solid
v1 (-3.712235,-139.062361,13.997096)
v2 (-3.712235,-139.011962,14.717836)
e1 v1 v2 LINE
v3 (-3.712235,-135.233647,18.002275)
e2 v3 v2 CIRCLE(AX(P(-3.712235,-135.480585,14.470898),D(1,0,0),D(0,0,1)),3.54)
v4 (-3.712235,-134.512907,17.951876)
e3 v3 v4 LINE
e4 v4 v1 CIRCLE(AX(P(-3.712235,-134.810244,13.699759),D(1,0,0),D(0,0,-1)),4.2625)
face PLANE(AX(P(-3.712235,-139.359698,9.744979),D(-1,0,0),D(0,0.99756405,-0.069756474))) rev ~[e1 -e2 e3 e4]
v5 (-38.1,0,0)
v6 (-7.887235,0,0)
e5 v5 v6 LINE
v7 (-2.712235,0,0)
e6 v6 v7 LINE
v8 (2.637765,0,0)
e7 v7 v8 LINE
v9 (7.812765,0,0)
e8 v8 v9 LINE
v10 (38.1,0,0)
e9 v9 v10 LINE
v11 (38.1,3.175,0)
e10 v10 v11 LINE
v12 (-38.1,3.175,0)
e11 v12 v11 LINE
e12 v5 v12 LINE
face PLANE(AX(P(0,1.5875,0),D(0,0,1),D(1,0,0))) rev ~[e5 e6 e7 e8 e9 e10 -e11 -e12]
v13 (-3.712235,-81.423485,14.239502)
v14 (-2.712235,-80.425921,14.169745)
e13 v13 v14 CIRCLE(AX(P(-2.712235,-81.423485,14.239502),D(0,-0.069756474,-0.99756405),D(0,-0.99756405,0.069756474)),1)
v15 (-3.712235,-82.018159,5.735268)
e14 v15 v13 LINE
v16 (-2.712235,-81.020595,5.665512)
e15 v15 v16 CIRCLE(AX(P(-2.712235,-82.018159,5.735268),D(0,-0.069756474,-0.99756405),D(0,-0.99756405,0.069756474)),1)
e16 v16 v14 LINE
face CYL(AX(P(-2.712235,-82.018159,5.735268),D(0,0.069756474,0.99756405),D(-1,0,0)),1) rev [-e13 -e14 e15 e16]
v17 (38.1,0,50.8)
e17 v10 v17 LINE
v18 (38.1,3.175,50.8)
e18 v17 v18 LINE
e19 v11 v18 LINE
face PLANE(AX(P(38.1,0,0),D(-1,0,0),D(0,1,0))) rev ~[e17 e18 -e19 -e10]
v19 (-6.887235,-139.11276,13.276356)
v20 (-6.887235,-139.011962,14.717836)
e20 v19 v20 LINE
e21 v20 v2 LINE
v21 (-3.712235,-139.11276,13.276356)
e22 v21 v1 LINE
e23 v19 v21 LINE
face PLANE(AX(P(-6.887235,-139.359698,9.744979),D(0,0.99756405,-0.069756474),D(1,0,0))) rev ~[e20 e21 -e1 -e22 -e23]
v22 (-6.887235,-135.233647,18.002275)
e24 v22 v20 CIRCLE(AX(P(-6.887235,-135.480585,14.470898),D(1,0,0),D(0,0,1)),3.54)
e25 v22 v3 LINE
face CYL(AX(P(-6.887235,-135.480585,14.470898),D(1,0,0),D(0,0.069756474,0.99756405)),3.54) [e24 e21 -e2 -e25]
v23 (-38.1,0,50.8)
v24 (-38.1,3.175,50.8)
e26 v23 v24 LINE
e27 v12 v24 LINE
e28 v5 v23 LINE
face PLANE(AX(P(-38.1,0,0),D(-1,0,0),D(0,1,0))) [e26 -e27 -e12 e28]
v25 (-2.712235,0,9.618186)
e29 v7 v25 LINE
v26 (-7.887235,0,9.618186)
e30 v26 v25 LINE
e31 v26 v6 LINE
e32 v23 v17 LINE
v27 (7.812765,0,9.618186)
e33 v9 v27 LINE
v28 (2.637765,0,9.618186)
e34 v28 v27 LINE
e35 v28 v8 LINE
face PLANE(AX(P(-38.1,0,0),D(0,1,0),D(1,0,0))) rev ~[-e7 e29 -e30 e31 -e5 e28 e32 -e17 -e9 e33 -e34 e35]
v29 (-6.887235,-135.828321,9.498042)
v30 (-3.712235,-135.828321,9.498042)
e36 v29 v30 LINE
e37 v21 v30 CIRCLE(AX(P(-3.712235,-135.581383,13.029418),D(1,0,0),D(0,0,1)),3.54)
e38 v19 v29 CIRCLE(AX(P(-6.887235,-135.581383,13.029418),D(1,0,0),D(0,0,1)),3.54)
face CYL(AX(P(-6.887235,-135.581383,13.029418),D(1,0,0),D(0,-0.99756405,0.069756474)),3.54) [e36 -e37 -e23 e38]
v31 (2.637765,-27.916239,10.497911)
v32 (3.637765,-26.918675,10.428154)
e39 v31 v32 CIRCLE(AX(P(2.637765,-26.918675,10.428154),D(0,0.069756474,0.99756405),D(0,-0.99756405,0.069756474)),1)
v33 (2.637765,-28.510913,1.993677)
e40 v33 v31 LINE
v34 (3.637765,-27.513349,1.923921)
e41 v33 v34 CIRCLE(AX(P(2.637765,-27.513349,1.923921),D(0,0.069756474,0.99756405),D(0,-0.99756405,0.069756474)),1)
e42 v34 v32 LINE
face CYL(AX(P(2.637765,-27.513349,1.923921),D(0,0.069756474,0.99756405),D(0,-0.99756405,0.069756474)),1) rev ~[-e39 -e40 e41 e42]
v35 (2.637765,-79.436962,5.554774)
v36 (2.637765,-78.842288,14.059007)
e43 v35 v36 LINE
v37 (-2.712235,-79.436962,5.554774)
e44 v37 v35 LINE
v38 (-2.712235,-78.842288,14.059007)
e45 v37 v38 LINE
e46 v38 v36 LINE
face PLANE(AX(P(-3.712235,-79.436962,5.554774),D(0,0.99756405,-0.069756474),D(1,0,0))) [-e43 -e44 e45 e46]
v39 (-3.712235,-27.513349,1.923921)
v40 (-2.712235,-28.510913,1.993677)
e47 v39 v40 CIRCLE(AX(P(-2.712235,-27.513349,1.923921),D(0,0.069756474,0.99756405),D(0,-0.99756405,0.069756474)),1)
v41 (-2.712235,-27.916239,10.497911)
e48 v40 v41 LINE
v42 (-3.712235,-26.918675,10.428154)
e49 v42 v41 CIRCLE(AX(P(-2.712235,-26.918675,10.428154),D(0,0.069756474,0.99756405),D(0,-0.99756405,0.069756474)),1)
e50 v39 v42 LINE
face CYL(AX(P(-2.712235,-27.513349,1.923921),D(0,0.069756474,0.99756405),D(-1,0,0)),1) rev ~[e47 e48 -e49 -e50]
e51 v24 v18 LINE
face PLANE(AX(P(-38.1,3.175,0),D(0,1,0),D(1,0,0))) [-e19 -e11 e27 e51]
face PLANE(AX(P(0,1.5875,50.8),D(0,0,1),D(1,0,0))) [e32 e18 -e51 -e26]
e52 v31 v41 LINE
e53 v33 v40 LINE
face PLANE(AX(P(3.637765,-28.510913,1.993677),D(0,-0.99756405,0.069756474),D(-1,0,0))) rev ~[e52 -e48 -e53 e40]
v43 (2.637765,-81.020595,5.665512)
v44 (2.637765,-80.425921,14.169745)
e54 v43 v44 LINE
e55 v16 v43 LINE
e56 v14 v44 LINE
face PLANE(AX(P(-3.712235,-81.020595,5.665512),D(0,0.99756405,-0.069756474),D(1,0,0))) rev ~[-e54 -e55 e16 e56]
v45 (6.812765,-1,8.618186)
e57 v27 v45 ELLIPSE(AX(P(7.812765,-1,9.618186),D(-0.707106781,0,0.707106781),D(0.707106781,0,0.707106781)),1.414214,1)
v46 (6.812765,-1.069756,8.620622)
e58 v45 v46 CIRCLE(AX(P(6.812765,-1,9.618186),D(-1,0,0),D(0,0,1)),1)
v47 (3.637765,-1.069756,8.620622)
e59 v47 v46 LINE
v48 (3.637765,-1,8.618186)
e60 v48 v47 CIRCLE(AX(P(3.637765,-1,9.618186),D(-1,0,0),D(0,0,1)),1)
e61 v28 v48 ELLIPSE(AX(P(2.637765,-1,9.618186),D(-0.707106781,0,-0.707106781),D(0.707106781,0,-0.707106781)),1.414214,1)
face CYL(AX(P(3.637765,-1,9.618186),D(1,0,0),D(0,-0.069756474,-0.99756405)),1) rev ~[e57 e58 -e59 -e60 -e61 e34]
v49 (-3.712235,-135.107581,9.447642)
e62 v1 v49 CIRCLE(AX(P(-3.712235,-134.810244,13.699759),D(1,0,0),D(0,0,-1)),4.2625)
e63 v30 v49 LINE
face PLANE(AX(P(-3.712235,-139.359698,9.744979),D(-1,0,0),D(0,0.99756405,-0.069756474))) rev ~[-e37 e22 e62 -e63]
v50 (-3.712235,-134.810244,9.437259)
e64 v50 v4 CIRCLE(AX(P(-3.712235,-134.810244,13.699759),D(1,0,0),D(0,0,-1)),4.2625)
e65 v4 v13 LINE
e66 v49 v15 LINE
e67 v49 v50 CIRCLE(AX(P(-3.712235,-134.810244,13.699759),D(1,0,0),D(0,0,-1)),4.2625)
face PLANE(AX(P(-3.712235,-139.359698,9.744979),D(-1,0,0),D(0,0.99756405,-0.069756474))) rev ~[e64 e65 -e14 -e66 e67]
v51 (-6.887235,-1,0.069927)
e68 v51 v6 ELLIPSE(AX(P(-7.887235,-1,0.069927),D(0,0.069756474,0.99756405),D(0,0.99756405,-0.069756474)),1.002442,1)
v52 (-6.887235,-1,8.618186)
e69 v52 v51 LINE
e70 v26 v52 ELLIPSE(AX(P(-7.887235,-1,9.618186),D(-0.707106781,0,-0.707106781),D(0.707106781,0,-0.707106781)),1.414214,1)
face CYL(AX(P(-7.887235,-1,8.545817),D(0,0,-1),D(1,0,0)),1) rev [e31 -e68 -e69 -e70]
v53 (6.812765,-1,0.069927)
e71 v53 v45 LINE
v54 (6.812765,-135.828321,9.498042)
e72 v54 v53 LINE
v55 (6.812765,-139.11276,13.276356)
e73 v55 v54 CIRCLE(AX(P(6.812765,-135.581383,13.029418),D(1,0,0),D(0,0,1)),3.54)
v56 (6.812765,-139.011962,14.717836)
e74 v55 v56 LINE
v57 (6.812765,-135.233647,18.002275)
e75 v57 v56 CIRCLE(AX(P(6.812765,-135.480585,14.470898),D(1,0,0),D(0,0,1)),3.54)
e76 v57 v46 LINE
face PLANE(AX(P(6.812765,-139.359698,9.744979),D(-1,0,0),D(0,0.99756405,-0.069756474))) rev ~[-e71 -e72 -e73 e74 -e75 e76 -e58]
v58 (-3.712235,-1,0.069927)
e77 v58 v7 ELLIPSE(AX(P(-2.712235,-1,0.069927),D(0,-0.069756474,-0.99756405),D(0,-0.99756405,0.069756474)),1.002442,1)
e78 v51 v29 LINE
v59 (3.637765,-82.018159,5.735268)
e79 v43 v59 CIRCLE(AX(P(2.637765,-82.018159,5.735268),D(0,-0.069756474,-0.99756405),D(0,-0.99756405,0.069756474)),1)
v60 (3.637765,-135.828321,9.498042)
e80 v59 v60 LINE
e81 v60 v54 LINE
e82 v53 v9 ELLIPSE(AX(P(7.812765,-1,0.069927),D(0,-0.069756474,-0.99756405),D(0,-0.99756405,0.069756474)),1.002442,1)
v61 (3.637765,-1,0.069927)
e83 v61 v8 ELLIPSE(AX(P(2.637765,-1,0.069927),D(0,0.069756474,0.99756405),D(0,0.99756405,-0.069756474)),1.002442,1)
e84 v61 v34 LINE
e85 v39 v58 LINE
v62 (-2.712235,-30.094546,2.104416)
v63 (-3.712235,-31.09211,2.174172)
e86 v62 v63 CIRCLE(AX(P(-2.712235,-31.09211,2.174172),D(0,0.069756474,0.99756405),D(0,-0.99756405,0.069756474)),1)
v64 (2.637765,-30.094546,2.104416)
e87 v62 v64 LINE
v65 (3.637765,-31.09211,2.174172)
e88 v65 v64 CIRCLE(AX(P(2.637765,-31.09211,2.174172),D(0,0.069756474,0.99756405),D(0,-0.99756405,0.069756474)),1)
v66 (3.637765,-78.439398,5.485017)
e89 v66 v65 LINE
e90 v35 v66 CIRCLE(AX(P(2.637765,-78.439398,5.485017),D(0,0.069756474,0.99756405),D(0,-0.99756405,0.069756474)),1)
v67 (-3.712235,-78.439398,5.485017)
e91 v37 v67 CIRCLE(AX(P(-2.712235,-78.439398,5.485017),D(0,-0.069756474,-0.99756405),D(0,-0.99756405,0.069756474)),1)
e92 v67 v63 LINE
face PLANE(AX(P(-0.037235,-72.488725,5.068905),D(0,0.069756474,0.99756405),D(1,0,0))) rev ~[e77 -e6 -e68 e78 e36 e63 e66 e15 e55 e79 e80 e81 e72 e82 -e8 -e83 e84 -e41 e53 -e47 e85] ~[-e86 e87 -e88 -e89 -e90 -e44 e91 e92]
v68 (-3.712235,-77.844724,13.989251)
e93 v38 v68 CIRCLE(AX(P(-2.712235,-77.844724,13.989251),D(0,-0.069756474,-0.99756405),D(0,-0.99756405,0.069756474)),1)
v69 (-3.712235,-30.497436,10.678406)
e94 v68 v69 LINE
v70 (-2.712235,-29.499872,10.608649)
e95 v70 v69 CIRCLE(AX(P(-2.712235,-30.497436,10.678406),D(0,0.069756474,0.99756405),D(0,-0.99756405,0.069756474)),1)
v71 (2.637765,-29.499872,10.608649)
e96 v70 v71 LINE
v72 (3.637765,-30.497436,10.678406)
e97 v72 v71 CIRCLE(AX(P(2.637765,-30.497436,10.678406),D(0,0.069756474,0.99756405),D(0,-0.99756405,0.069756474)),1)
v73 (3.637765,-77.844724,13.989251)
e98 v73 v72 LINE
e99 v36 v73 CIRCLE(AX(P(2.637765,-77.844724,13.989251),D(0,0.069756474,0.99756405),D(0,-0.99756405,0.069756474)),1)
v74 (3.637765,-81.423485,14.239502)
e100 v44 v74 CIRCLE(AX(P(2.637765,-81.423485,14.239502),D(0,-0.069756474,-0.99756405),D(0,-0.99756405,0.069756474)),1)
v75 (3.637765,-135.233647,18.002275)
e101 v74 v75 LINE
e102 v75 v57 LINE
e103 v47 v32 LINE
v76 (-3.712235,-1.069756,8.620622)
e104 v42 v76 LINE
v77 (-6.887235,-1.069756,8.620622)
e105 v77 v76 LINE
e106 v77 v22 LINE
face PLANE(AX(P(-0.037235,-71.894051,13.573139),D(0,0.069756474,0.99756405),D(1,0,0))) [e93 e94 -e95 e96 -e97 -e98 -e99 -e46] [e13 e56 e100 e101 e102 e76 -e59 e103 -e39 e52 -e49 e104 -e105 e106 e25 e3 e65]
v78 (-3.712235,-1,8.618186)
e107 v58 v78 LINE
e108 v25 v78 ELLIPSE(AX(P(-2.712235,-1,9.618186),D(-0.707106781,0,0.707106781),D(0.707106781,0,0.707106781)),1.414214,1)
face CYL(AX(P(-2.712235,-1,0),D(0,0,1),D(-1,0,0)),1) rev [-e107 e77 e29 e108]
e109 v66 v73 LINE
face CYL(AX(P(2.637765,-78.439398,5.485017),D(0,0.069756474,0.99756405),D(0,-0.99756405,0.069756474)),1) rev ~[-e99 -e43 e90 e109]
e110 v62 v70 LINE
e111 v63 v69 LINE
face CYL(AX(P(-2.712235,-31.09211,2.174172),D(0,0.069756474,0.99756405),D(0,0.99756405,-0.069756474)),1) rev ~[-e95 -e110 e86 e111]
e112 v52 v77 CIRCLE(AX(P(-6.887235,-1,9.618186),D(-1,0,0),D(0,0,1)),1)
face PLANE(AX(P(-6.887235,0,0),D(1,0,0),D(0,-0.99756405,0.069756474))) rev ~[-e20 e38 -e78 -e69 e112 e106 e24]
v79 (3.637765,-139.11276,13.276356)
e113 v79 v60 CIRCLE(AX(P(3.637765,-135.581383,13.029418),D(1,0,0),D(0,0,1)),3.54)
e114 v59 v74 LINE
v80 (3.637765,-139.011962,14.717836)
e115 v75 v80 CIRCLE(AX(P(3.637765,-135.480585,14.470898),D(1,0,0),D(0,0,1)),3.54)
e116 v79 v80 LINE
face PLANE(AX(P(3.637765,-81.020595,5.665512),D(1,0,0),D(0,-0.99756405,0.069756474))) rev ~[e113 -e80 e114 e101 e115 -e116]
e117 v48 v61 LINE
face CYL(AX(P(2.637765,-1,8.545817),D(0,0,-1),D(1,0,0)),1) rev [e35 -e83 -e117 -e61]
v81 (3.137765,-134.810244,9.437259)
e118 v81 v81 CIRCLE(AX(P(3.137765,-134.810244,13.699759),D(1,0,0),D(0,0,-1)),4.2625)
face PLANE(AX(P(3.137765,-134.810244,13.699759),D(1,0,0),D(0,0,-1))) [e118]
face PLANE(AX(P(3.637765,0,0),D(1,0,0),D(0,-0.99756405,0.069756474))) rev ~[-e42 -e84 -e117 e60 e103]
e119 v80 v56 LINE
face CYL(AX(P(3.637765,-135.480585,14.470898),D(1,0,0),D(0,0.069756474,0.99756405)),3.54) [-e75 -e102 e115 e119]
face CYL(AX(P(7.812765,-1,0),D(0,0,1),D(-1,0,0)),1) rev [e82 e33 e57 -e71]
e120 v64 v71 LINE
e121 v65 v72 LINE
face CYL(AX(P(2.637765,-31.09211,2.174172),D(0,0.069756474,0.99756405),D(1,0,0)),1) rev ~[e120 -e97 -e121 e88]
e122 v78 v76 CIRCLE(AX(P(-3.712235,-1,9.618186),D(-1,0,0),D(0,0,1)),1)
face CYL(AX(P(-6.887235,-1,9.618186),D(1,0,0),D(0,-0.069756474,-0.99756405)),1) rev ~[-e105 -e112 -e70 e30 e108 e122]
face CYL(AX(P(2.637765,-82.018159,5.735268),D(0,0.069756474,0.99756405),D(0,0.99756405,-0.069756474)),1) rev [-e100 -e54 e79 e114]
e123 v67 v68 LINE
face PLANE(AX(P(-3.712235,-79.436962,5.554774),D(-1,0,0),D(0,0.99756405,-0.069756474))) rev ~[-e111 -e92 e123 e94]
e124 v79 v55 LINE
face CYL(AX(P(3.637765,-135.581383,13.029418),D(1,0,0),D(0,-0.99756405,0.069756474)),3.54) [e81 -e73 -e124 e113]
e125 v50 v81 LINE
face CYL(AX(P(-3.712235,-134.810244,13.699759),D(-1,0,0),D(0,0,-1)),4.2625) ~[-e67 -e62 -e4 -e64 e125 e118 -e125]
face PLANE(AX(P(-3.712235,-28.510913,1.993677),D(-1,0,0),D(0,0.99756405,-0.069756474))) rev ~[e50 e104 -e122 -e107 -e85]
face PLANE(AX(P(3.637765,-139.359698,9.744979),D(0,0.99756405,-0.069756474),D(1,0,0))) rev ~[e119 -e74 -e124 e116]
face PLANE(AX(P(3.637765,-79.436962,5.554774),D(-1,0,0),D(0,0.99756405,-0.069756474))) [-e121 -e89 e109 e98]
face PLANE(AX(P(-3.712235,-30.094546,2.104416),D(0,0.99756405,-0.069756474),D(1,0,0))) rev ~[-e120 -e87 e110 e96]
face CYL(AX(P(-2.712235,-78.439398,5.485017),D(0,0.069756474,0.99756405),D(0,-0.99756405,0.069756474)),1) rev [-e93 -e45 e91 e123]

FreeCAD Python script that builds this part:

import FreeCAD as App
import Part
import Sketcher
Q = App.Units.Quantity


def edges_at(feature, points):
    """Names of the edges that pass closest to the given points."""
    edges = feature.Shape.Edges
    near = lambda p: min(range(len(edges)), key=lambda i: edges[i].distToShape(Part.Vertex(*p))[0])
    return sorted({f"Edge{near(p) + 1}" for p in points})

doc = App.newDocument("Part")
body = doc.addObject("PartDesign::Body", "Body")

# Sketch on XY plane
sketch1 = doc.addObject("Sketcher::SketchObject", "Sketch")
body.addObject(sketch1)
sketch1.AttachmentSupport = (doc.XY_Plane, [""])
sketch1.MapMode = "FlatFace"
sketch1.addGeometry([
    Part.LineSegment(App.Vector(-38.1, 3.2, 0), App.Vector(-38.1, 0, 0)),
    Part.LineSegment(App.Vector(-38.1, 0, 0), App.Vector(38.1, 0, 0)),
    Part.LineSegment(App.Vector(38.1, 0, 0), App.Vector(38.1, 3.2, 0)),
    Part.LineSegment(App.Vector(38.1, 3.2, 0), App.Vector(-38.1, 3.2, 0)),
], False)
sketch1.addConstraint([
    Sketcher.Constraint("Coincident", 0, 2, 1, 1),
    Sketcher.Constraint("Coincident", 1, 2, 2, 1),
    Sketcher.Constraint("Coincident", 2, 2, 3, 1),
    Sketcher.Constraint("Coincident", 3, 2, 0, 1),
    Sketcher.Constraint("Vertical", 0),
    Sketcher.Constraint("Horizontal", 1),
    Sketcher.Constraint("Vertical", 2),
    Sketcher.Constraint("Horizontal", 3),
    Sketcher.Constraint("Symmetric", 0, 2, 1, 2, -1, 1),
    Sketcher.Constraint("DistanceX", 1, 1, 1, 2, Q("3 in")),
    Sketcher.Constraint("DistanceY", 0, 2, 0, 1, Q("0.125 in")),
])
pad1 = doc.addObject("PartDesign::Pad", "Pad")
body.addObject(pad1)
pad1.Profile = sketch1
pad1.Length = Q("2 in")

# Sketch on an angled plane
sketch2 = doc.addObject("Sketcher::SketchObject", "Sketch001")
body.addObject(sketch2)
sketch2.Placement = App.Placement(App.Vector(0, 0, 0), App.Rotation(App.Vector(1, 0, 0), App.Vector(0, 0.99756405, -0.069756474), App.Vector(0, 0.069756474, 0.99756405), "ZXY"))
sketch2.addGeometry([
    Part.LineSegment(App.Vector(-3.7, 0, 0), App.Vector(-6.9, 0, 0)),  # 0
    Part.LineSegment(App.Vector(-6.9, 0, 0), App.Vector(-6.9, -139.7, 0)),  # 1
    Part.LineSegment(App.Vector(-6.9, -139.7, 0), App.Vector(-3.7, -139.7, 0)),  # 2
    Part.LineSegment(App.Vector(-3.7, -139.7, 0), App.Vector(-3.7, -81.2, 0)),  # 3
    Part.LineSegment(App.Vector(-3.7, -81.2, 0), App.Vector(3.6, -81.2, 0)),  # 4
    Part.LineSegment(App.Vector(3.6, -81.2, 0), App.Vector(3.6, -139.7, 0)),  # 5
    Part.LineSegment(App.Vector(3.6, -139.7, 0), App.Vector(6.8, -139.7, 0)),  # 6
    Part.LineSegment(App.Vector(6.8, -139.7, 0), App.Vector(6.8, 0, 0)),  # 7
    Part.LineSegment(App.Vector(6.8, 0, 0), App.Vector(3.6, 0, 0)),  # 8
    Part.LineSegment(App.Vector(3.6, 0, 0), App.Vector(3.6, -28.6, 0)),  # 9
    Part.LineSegment(App.Vector(3.6, -28.6, 0), App.Vector(-3.7, -28.6, 0)),  # 10
    Part.LineSegment(App.Vector(-3.7, -28.6, 0), App.Vector(-3.7, 0, 0)),  # 11
    Part.LineSegment(App.Vector(3.6, -79.6, 0), App.Vector(-3.7, -79.6, 0)),  # 12
    Part.LineSegment(App.Vector(-3.7, -79.6, 0), App.Vector(-3.7, -30.2, 0)),  # 13
    Part.LineSegment(App.Vector(-3.7, -30.2, 0), App.Vector(3.6, -30.2, 0)),  # 14
    Part.LineSegment(App.Vector(3.6, -30.2, 0), App.Vector(3.6, -79.6, 0)),  # 15
], False)
sketch2.addConstraint([
    Sketcher.Constraint("Coincident", 0, 2, 1, 1),
    Sketcher.Constraint("Coincident", 1, 2, 2, 1),
    Sketcher.Constraint("Coincident", 2, 2, 3, 1),
    Sketcher.Constraint("Coincident", 3, 2, 4, 1),
    Sketcher.Constraint("Coincident", 4, 2, 5, 1),
    Sketcher.Constraint("Coincident", 5, 2, 6, 1),
    Sketcher.Constraint("Coincident", 6, 2, 7, 1),
    Sketcher.Constraint("Coincident", 7, 2, 8, 1),
    Sketcher.Constraint("Coincident", 8, 2, 9, 1),
    Sketcher.Constraint("Coincident", 9, 2, 10, 1),
    Sketcher.Constraint("Coincident", 10, 2, 11, 1),
    Sketcher.Constraint("Coincident", 11, 2, 0, 1),
    Sketcher.Constraint("Coincident", 12, 2, 13, 1),
    Sketcher.Constraint("Coincident", 13, 2, 14, 1),
    Sketcher.Constraint("Coincident", 14, 2, 15, 1),
    Sketcher.Constraint("Coincident", 15, 2, 12, 1),
    Sketcher.Constraint("Horizontal", 0),
    Sketcher.Constraint("Vertical", 1),
    Sketcher.Constraint("Horizontal", 2),
    Sketcher.Constraint("Vertical", 3),
    Sketcher.Constraint("Horizontal", 4),
    Sketcher.Constraint("Vertical", 5),
    Sketcher.Constraint("Horizontal", 6),
    Sketcher.Constraint("Vertical", 7),
    Sketcher.Constraint("Horizontal", 8),
    Sketcher.Constraint("Vertical", 9),
    Sketcher.Constraint("Horizontal", 10),
    Sketcher.Constraint("Vertical", 11),
    Sketcher.Constraint("Horizontal", 12),
    Sketcher.Constraint("Vertical", 13),
    Sketcher.Constraint("Horizontal", 14),
    Sketcher.Constraint("Vertical", 15),
    Sketcher.Constraint("PointOnObject", 0, 2, -1),
    Sketcher.Constraint("PointOnObject", 7, 2, -1),
    Sketcher.Constraint("Horizontal", 2, 2, 5, 2),
    Sketcher.Constraint("Vertical", 5, 2, 8, 2),
    Sketcher.Constraint("Vertical", 3, 2, 10, 2),
    Sketcher.Constraint("Vertical", 11, 2, 12, 2),
    Sketcher.Constraint("Vertical", 9, 2, 14, 2),
    Sketcher.Constraint("Equal", 2, 6),
    Sketcher.Constraint("DistanceY", 1, 2, 1, 1, Q("5.5 in")),
    Sketcher.Constraint("DistanceX", 0, 2, 0, 1, Q("0.125 in")),
    Sketcher.Constraint("DistanceY", 3, 2, 12, 2, Q("0.0625 in")),
    Sketcher.Constraint("DistanceY", 13, 2, 10, 2, Q("0.0625 in")),
    Sketcher.Constraint("DistanceX", 4, 1, 4, 2, Q("7.35 mm")),
    Sketcher.Constraint("DistanceY", 3, 1, 3, 2, Q("58.481561 mm")),
    Sketcher.Constraint("DistanceY", 9, 2, 9, 1, Q("28.580534 mm")),
    Sketcher.Constraint("DistanceX", 0, 2, -1, 1, Q("6.887235 mm")),
])
pad2 = doc.addObject("PartDesign::Pad", "Pad001")
body.addObject(pad2)
pad2.Profile = sketch2
pad2.Length = 8.525

# Sketch on YZ plane
sketch3 = doc.addObject("Sketcher::SketchObject", "Sketch002")
body.addObject(sketch3)
sketch3.AttachmentSupport = (doc.YZ_Plane, [""])
sketch3.MapMode = "FlatFace"
sketch3.AttachmentOffset = App.Placement(App.Vector(0, 0, -3.712235), App.Rotation())
sketch3.addGeometry(Part.Circle(App.Vector(-134.8, 13.7, 0), App.Vector(0, 0, 1), 4.3), False)
sketch3.addConstraint([
    Sketcher.Constraint("Diameter", 0, Q("8.525 mm")),
    Sketcher.Constraint("DistanceY", -1, 1, 0, 3, Q("13.699759 mm")),
    Sketcher.Constraint("DistanceX", 0, 3, -1, 1, Q("134.810244 mm")),
])
pad3 = doc.addObject("PartDesign::Pad", "Pad002")
body.addObject(pad3)
pad3.Profile = sketch3
pad3.Length = 6.85
doc.recompute()

fillet = doc.addObject("PartDesign::Fillet", "Fillet")
body.addObject(fillet)
fillet.Base = (pad3, edges_at(pad3, [
    (5.225, 0, 8.546),
    (-5.3, 0, 8.546),
    (3.638, 0, 4.273),
    (-6.887, 0, 4.273),
    (-3.712, -28.214, 6.246),
    (-3.712, -29.797, 6.357),
    (3.638, -28.214, 6.246),
    (-3.712, -80.723, 9.918),
    (3.638, -79.14, 9.807),
    (3.638, -29.797, 6.357),
    (-3.712, -79.14, 9.807),
    (-3.712, 0, 4.273),
    (3.638, -80.723, 9.918),
    (6.813, 0, 4.273),
]))
fillet.Radius = 1
doc.recompute()

fillet2 = doc.addObject("PartDesign::Fillet", "Fillet001")
body.addObject(fillet2)
fillet2.Base = (fillet, edges_at(fillet, [
    (-5.3, -138.765, 18.249),
    (5.225, -138.765, 18.249),
    (-5.3, -139.36, 9.745),
    (5.225, -139.36, 9.745),
]))
fillet2.Radius = 3.54

doc.recompute()
